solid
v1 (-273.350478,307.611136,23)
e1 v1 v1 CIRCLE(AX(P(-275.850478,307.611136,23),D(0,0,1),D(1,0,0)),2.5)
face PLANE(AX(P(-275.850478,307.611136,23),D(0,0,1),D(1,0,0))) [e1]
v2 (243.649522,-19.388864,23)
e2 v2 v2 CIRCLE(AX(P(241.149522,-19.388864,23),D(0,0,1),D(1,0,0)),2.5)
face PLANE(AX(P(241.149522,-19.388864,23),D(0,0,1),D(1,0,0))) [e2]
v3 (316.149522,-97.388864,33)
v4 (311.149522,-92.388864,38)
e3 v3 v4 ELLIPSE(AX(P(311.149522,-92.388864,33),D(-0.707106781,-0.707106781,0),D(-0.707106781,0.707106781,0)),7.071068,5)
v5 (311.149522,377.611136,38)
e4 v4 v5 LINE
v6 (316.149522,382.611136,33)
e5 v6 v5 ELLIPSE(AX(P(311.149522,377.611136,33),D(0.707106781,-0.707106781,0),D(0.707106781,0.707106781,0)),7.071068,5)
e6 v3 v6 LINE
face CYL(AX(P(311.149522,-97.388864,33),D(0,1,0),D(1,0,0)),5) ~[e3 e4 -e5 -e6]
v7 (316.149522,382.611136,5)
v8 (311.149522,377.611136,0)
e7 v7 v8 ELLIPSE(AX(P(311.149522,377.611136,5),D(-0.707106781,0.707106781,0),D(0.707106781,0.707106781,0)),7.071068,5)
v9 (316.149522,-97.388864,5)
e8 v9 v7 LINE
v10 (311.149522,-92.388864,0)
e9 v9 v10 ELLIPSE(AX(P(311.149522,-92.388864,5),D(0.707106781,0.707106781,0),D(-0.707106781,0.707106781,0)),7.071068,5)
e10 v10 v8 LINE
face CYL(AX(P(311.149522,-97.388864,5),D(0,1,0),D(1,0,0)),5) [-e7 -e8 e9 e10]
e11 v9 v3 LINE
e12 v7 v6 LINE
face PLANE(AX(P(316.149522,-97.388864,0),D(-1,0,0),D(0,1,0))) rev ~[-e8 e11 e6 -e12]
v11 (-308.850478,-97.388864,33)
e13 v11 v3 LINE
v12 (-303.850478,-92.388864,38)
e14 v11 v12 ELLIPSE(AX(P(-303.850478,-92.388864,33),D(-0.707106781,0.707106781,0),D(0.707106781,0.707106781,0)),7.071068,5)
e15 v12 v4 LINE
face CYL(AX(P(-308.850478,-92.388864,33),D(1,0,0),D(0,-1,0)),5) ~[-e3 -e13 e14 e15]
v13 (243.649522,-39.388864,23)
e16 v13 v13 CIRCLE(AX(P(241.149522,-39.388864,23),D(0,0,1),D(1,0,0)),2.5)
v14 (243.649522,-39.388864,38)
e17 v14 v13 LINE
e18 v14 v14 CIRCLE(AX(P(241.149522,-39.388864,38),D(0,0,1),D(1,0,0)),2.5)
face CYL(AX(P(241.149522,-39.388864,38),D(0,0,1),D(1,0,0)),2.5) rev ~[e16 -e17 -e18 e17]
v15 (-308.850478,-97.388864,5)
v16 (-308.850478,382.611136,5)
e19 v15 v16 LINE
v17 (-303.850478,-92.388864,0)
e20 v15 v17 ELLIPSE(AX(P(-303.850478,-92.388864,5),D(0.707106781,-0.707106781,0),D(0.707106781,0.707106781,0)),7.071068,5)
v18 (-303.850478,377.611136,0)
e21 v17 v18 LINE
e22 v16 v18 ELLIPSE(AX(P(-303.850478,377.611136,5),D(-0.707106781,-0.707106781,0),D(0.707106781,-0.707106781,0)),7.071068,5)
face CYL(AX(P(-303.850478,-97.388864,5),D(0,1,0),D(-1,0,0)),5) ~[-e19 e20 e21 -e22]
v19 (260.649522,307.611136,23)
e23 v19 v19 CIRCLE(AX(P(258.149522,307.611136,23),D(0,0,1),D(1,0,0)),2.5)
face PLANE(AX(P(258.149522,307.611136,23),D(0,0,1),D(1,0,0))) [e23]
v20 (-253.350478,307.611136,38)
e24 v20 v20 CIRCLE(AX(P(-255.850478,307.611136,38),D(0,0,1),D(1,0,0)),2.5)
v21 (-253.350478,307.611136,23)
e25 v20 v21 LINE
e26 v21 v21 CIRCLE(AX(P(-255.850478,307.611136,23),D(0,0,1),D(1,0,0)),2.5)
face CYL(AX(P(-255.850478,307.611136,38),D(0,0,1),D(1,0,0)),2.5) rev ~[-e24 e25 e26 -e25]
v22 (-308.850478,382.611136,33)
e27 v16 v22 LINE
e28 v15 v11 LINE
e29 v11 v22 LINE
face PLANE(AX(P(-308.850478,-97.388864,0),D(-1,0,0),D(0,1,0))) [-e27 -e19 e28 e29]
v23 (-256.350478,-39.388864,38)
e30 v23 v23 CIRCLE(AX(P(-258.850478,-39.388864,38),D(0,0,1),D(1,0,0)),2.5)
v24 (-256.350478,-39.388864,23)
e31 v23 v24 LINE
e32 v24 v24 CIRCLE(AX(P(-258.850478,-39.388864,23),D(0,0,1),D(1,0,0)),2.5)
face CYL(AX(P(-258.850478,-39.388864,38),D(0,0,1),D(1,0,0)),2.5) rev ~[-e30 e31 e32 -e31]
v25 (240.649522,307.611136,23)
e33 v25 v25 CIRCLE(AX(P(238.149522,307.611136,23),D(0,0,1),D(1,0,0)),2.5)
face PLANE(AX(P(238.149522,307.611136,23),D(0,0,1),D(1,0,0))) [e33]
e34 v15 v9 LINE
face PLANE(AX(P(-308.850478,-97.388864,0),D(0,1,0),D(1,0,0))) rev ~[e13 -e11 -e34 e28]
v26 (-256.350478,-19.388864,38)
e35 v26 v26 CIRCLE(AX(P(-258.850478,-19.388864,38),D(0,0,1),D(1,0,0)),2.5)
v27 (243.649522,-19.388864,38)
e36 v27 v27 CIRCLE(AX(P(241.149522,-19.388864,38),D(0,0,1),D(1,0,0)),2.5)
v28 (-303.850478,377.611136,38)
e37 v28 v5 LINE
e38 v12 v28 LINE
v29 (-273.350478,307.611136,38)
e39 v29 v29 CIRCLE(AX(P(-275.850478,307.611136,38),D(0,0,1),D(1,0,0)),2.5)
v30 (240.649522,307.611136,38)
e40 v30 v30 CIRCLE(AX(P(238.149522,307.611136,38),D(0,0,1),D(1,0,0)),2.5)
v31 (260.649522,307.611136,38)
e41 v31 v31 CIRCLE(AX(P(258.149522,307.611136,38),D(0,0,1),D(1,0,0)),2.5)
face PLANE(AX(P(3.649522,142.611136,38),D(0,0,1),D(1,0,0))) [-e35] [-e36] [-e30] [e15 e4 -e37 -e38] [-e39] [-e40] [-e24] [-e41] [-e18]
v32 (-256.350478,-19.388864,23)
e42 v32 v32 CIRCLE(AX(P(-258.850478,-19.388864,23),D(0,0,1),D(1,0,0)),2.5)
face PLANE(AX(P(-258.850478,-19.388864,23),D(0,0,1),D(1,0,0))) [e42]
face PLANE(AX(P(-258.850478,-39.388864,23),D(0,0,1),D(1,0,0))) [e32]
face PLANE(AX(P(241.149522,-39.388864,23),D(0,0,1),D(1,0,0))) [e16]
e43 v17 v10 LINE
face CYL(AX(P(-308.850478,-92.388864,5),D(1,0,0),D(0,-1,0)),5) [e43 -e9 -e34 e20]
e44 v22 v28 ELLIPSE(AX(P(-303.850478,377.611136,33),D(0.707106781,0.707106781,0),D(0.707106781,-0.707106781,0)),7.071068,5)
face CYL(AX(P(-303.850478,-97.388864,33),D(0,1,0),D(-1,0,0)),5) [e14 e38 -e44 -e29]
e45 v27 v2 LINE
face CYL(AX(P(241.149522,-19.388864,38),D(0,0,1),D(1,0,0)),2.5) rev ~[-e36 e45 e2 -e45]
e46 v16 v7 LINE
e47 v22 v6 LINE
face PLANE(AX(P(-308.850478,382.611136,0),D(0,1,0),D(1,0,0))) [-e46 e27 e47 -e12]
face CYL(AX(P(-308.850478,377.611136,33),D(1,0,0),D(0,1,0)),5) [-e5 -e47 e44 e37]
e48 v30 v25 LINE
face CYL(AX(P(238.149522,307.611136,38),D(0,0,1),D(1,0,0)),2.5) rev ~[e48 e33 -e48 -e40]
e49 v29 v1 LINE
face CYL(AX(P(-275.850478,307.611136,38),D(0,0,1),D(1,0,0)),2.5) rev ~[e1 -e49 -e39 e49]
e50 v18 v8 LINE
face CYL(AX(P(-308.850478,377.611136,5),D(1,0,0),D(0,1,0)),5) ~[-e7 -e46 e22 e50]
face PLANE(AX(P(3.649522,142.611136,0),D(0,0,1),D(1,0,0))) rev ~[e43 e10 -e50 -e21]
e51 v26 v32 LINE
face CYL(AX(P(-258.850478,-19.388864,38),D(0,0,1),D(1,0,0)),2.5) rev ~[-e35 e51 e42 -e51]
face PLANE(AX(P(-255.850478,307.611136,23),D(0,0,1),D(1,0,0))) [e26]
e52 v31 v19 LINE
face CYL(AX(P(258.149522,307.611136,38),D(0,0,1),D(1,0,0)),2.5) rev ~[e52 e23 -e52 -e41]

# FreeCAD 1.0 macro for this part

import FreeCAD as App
import Part
import Sketcher
Q = App.Units.Quantity


def edges_at(feature, points):
    """Names of the edges that pass closest to the given points."""
    edges = feature.Shape.Edges
    near = lambda p: min(range(len(edges)), key=lambda i: edges[i].distToShape(Part.Vertex(*p))[0])
    return sorted({f"Edge{near(p) + 1}" for p in points})


def add_polygon(sketch, points):
    """Adds a closed chain of lines whose ends are joined by coincident constraints."""
    first, n = sketch.GeometryCount, len(points)
    for a, b in zip(points, points[1:] + points[:1]):
        sketch.addGeometry(Part.LineSegment(App.Vector(*a, 0), App.Vector(*b, 0)), False)
    for i in range(n):
        sketch.addConstraint(Sketcher.Constraint("Coincident", first + i, 2, first + (i + 1) % n, 1))

doc = App.newDocument("Part")
params = doc.addObject("Spreadsheet::Sheet", "Params")
for row, (alias, value) in enumerate([
    ("sketch1_width", "625 mm"),
    ("sketch1_height", "480 mm"),
    ("pad1_length", "38 mm"),
    ("fillet_radius", "5 mm"),
    ("sketch2_diameter", "5 mm"),
    ("pocket1_length", "15 mm"),
], start=1):
    params.set(f"A{row}", alias)
    params.set(f"B{row}", "=" + value)
    params.setAlias(f"B{row}", alias)

body = doc.addObject("PartDesign::Body", "Body")

# Sketch on XY plane
sketch1 = body.newObject("Sketcher::SketchObject", "Sketch")
sketch1.AttachmentSupport = (doc.getObject("XY_Plane"), [""])
sketch1.MapMode = "FlatFace"
add_polygon(sketch1, [(-308.850478, 382.611136), (-308.850478, -97.388864), (316.149522, -97.388864), (316.149522, 382.611136)])  # lines 0-3
sketch1.addConstraint([
    Sketcher.Constraint("Vertical", 0),
    Sketcher.Constraint("Horizontal", 1),
    Sketcher.Constraint("Vertical", 2),
    Sketcher.Constraint("Horizontal", 3),
    Sketcher.Constraint("DistanceX", 1, 1, 1, 2, Q("625 mm")),
    Sketcher.Constraint("DistanceY", 0, 2, 0, 1, Q("480 mm")),
    Sketcher.Constraint("DistanceX", 0, 2, -1, 1, Q("308.850478 mm")),
    Sketcher.Constraint("DistanceY", 0, 2, -1, 1, Q("97.388864 mm")),
])
sketch1.setExpression("Constraints[8]", "Params.sketch1_width")
sketch1.setExpression("Constraints[9]", "Params.sketch1_height")
pad1 = body.newObject("PartDesign::Pad", "Pad")
pad1.Profile = sketch1
pad1.setExpression("Length", "Params.pad1_length")
doc.recompute()

fillet = body.newObject("PartDesign::Fillet", "Fillet")
fillet.Base = (pad1, edges_at(pad1, [
    (316.15, 142.611, 38),
    (3.65, 382.611, 38),
    (-308.85, 142.611, 38),
    (3.65, -97.389, 38),
    (316.15, 142.611, 0),
    (3.65, 382.611, 0),
    (-308.85, 142.611, 0),
    (3.65, -97.389, 0),
]))
fillet.setExpression("Radius", "Params.fillet_radius")

# Sketch on XY plane
sketch2 = body.newObject("Sketcher::SketchObject", "Sketch001")
sketch2.AttachmentSupport = (doc.getObject("XY_Plane"), [""])
sketch2.MapMode = "FlatFace"
sketch2.AttachmentOffset = App.Placement(App.Vector(0, 0, 38), App.Rotation())
sketch2.addGeometry([
    Part.Circle(App.Vector(-275.850478, 307.611136, 0), App.Vector(0, 0, 1), 2.5),  # 0
    Part.Circle(App.Vector(-255.850478, 307.611136, 0), App.Vector(0, 0, 1), 2.5),  # 1
    Part.Circle(App.Vector(-258.850478, -39.388864, 0), App.Vector(0, 0, 1), 2.5),  # 2
    Part.Circle(App.Vector(-258.850478, -19.388864, 0), App.Vector(0, 0, 1), 2.5),  # 3
    Part.Circle(App.Vector(238.149522, 307.611136, 0), App.Vector(0, 0, 1), 2.5),  # 4
    Part.Circle(App.Vector(258.149522, 307.611136, 0), App.Vector(0, 0, 1), 2.5),  # 5
    Part.Circle(App.Vector(241.149522, -19.388864, 0), App.Vector(0, 0, 1), 2.5),  # 6
    Part.Circle(App.Vector(241.149522, -39.388864, 0), App.Vector(0, 0, 1), 2.5),  # 7
], False)
sketch2.addConstraint([
    Sketcher.Constraint("Equal", 0, 1),
    Sketcher.Constraint("Equal", 1, 2),
    Sketcher.Constraint("Equal", 2, 3),
    Sketcher.Constraint("Equal", 3, 4),
    Sketcher.Constraint("Equal", 4, 5),
    Sketcher.Constraint("Equal", 5, 6),
    Sketcher.Constraint("Equal", 6, 7),
    Sketcher.Constraint("Horizontal", 0, 3, 1, 3),
    Sketcher.Constraint("Horizontal", 1, 3, 4, 3),
    Sketcher.Constraint("Horizontal", 4, 3, 5, 3),
    Sketcher.Constraint("Horizontal", 3, 3, 6, 3),
    Sketcher.Constraint("Horizontal", 2, 3, 7, 3),
    Sketcher.Constraint("Vertical", 2, 3, 3, 3),
    Sketcher.Constraint("Vertical", 6, 3, 7, 3),
    Sketcher.Constraint("Diameter", 0, Q("5 mm")),
    Sketcher.Constraint("DistanceX", 0, 3, 1, 3, Q("20 mm")),
    Sketcher.Constraint("DistanceX", 2, 3, 1, 3, Q("3 mm")),
    Sketcher.Constraint("DistanceY", 2, 3, 1, 3, Q("347 mm")),
    Sketcher.Constraint("DistanceY", 2, 3, 3, 3, Q("20 mm")),
    Sketcher.Constraint("DistanceX", 1, 3, 4, 3, Q("494 mm")),
    Sketcher.Constraint("DistanceX", 4, 3, 5, 3, Q("20 mm")),
    Sketcher.Constraint("DistanceX", 4, 3, 6, 3, Q("3 mm")),
    Sketcher.Constraint("DistanceX", 0, 3, -1, 1, Q("275.850478 mm")),
    Sketcher.Constraint("DistanceY", -1, 1, 0, 3, Q("307.611136 mm")),
])
sketch2.setExpression("Constraints[14]", "Params.sketch2_diameter")
pocket1 = body.newObject("PartDesign::Pocket", "Pocket")
pocket1.Profile = sketch2
pocket1.setExpression("Length", "Params.pocket1_length")

doc.recompute()
